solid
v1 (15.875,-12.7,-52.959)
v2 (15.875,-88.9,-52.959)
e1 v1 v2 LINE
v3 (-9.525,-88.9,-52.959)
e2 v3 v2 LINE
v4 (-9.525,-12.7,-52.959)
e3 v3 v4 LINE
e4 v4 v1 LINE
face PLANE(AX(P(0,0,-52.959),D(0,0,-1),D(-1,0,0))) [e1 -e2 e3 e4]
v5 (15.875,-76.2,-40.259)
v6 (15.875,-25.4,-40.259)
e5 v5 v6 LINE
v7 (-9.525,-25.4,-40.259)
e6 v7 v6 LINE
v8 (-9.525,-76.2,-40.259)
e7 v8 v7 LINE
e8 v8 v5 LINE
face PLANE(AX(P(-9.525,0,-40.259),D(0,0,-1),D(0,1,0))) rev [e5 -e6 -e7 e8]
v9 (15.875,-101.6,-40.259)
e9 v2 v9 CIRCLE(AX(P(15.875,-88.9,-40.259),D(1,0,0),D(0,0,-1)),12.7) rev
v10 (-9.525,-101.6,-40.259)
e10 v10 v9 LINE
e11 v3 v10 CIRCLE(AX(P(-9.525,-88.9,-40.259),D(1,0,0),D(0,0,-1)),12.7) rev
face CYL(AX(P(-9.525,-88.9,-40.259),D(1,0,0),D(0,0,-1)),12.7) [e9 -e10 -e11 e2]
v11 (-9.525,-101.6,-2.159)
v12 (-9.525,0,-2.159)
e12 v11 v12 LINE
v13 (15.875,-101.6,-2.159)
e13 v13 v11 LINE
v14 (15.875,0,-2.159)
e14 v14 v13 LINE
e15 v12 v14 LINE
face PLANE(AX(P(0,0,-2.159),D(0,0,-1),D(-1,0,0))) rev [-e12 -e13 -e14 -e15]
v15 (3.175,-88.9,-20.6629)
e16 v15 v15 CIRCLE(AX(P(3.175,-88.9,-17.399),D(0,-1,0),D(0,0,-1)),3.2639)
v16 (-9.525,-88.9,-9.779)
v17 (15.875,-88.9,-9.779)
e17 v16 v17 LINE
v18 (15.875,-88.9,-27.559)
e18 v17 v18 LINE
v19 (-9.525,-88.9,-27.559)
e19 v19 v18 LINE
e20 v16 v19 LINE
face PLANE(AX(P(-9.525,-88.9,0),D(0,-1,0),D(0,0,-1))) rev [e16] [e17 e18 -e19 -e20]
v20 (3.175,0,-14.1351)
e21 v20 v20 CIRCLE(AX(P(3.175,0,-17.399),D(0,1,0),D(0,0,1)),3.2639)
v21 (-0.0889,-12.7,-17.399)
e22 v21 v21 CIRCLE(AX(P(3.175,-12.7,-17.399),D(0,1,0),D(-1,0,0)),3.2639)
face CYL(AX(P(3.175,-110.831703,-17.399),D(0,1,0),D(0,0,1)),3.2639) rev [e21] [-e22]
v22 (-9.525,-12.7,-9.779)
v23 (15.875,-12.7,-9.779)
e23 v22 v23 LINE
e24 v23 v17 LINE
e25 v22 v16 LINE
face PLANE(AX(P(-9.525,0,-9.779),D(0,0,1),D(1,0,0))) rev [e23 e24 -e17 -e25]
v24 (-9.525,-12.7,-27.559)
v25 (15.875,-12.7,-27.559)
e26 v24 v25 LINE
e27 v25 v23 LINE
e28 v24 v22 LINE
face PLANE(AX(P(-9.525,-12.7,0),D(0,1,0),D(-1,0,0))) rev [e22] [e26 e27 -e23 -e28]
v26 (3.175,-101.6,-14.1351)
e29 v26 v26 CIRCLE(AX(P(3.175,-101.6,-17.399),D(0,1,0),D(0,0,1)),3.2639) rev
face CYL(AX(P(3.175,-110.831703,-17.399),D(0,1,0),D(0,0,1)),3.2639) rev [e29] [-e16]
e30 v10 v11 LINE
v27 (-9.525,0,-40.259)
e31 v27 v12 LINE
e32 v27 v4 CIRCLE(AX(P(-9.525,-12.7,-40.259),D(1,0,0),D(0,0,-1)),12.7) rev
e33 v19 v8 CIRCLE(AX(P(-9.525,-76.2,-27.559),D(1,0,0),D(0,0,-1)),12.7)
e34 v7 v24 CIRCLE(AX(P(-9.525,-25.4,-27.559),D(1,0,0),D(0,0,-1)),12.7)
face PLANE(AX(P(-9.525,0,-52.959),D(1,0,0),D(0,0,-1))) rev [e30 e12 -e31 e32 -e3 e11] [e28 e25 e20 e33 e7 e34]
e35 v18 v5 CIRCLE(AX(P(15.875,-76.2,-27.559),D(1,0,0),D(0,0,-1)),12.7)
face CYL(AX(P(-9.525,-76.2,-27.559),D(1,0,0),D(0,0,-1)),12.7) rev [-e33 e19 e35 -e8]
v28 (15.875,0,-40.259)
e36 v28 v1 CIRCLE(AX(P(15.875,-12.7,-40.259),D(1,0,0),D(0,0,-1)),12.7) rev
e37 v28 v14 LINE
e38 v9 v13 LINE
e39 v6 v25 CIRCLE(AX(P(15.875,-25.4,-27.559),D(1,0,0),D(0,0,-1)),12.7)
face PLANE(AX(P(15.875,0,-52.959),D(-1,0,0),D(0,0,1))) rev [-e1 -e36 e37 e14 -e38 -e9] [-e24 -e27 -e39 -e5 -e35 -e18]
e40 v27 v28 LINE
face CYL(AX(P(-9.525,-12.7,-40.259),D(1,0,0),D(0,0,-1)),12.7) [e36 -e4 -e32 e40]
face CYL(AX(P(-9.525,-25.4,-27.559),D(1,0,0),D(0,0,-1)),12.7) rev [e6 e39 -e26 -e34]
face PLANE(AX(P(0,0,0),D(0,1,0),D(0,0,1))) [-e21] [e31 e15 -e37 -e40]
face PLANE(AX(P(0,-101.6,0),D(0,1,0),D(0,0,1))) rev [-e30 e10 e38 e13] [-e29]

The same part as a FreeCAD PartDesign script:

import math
import FreeCAD as App
import Part
import Sketcher

V = App.Vector
Q = App.Units.Quantity

doc = App.newDocument("Part")
body = doc.addObject("PartDesign::Body", "Body")

# Sketch on XZ plane
sketch1 = doc.addObject("Sketcher::SketchObject", "Sketch")
body.addObject(sketch1)
sketch1.AttachmentSupport = (doc.XZ_Plane, [""])
sketch1.MapMode = "FlatFace"
sketch1.addGeometry(Part.LineSegment(V(0, -2.2, 0), V(0, 0, 0)), False)
sketch1.addGeometry(Part.LineSegment(V(0, 0, 0), V(-3.9, 0, 0)), False)
sketch1.addGeometry(Part.LineSegment(V(-3.9, 0, 0), V(0, 5.8, 0)), False)
sketch1.addGeometry(Part.LineSegment(V(0, 5.8, 0), V(6.3, 5.8, 0)), False)
sketch1.addGeometry(Part.LineSegment(V(6.3, 5.8, 0), V(10.3, 0, 0)), False)
sketch1.addGeometry(Part.LineSegment(V(10.3, 0, 0), V(6.3, 0, 0)), False)
sketch1.addGeometry(Part.LineSegment(V(6.3, 0, 0), V(6.3, -2.2, 0)), False)
sketch1.addGeometry(Part.LineSegment(V(6.3, -2.2, 0), V(0, -2.2, 0)), False)
sketch1.addConstraint(Sketcher.Constraint("Coincident", 0, 2, 1, 1))
sketch1.addConstraint(Sketcher.Constraint("Coincident", 1, 2, 2, 1))
sketch1.addConstraint(Sketcher.Constraint("Coincident", 2, 2, 3, 1))
sketch1.addConstraint(Sketcher.Constraint("Coincident", 3, 2, 4, 1))
sketch1.addConstraint(Sketcher.Constraint("Coincident", 4, 2, 5, 1))
sketch1.addConstraint(Sketcher.Constraint("Coincident", 5, 2, 6, 1))
sketch1.addConstraint(Sketcher.Constraint("Coincident", 6, 2, 7, 1))
sketch1.addConstraint(Sketcher.Constraint("Coincident", 7, 2, 0, 1))
sketch1.addConstraint(Sketcher.Constraint("Vertical", 0))
sketch1.addConstraint(Sketcher.Constraint("Horizontal", 1))
sketch1.addConstraint(Sketcher.Constraint("Horizontal", 3))
sketch1.addConstraint(Sketcher.Constraint("Horizontal", 5))
sketch1.addConstraint(Sketcher.Constraint("Vertical", 6))
sketch1.addConstraint(Sketcher.Constraint("Horizontal", 7))
sketch1.addConstraint(Sketcher.Constraint("Coincident", 0, 2, -1, 1))
sketch1.addConstraint(Sketcher.Constraint("PointOnObject", 2, 2, -2))
sketch1.addConstraint(Sketcher.Constraint("PointOnObject", 4, 2, -1))
sketch1.addConstraint(Sketcher.Constraint("Vertical", 3, 2, 5, 2))
sketch1.addConstraint(Sketcher.Constraint("Equal", 1, 5))
sketch1.addConstraint(Sketcher.Constraint("DistanceX", 3, 1, 3, 2, Q("0.25 in")))
sketch1.addConstraint(Sketcher.Constraint("DistanceX", 1, 2, 1, 1, Q("0.155 in")))
sketch1.addConstraint(Sketcher.Constraint("DistanceY", 0, 1, 0, 2, Q("0.085 in")))
sketch1.addConstraint(Sketcher.Constraint("Distance", 2, Q("0.275 in")))
pad1 = doc.addObject("PartDesign::Pad", "Pad")
body.addObject(pad1)
pad1.Profile = sketch1
pad1.Length = Q("4 in")

# Sketch on XY plane
sketch2 = doc.addObject("Sketcher::SketchObject", "Sketch001")
body.addObject(sketch2)
sketch2.AttachmentSupport = (doc.XY_Plane, [""])
sketch2.MapMode = "FlatFace"
sketch2.AttachmentOffset = App.Placement(V(0, 0, -0.085 * 25.4), App.Rotation())
sketch2.addGeometry(Part.LineSegment(V(16, 0, 0), V(16, -102, 0)), False)
sketch2.addGeometry(Part.LineSegment(V(16, -102, 0), V(-10, -102, 0)), False)
sketch2.addGeometry(Part.LineSegment(V(-10, -102, 0), V(-10, 0, 0)), False)
sketch2.addGeometry(Part.LineSegment(V(-10, 0, 0), V(16, 0, 0)), False)
sketch2.addConstraint(Sketcher.Constraint("Coincident", 0, 2, 1, 1))
sketch2.addConstraint(Sketcher.Constraint("Coincident", 1, 2, 2, 1))
sketch2.addConstraint(Sketcher.Constraint("Coincident", 2, 2, 3, 1))
sketch2.addConstraint(Sketcher.Constraint("Coincident", 3, 2, 0, 1))
sketch2.addConstraint(Sketcher.Constraint("Vertical", 0))
sketch2.addConstraint(Sketcher.Constraint("Horizontal", 1))
sketch2.addConstraint(Sketcher.Constraint("Vertical", 2))
sketch2.addConstraint(Sketcher.Constraint("Horizontal", 3))
sketch2.addConstraint(Sketcher.Constraint("PointOnObject", 2, 2, -1))
sketch2.addConstraint(Sketcher.Constraint("DistanceX", 1, 2, 1, 1, Q("1 in")))
sketch2.addConstraint(Sketcher.Constraint("DistanceY", 0, 2, 0, 1, Q("4 in")))
sketch2.addConstraint(Sketcher.Constraint("DistanceX", -1, 1, 0, 2, Q("0.625 in")))
pad2 = doc.addObject("PartDesign::Pad", "Pad001")
body.addObject(pad2)
pad2.Profile = sketch2
pad2.Length = Q("2 in")
pad2.Reversed = True

# Sketch on YZ plane
sketch3 = doc.addObject("Sketcher::SketchObject", "Sketch002")
body.addObject(sketch3)
sketch3.AttachmentSupport = (doc.YZ_Plane, [""])
sketch3.MapMode = "FlatFace"
sketch3.AttachmentOffset = App.Placement(V(0, 0, 0.625 * 25.4), App.Rotation())
sketch3.addGeometry(Part.ArcOfCircle(Part.Circle(V(-89, -40, 0), V(0, 0, 1), 13), math.radians(180), math.radians(270)), False)
sketch3.addGeometry(Part.LineSegment(V(-102, -40, 0), V(-102, -53, 0)), False)
sketch3.addGeometry(Part.LineSegment(V(-102, -53, 0), V(-89, -53, 0)), False)
sketch3.addGeometry(Part.LineSegment(V(0, -53, 0), V(0, -40, 0)), False)
sketch3.addGeometry(Part.ArcOfCircle(Part.Circle(V(-13, -40, 0), V(0, 0, 1), 13), math.radians(-90), math.radians(0)), False)
sketch3.addGeometry(Part.LineSegment(V(-13, -53, 0), V(0, -53, 0)), False)
sketch3.addGeometry(Part.LineSegment(V(-76, -40, 0), V(-25, -40, 0)), False)
sketch3.addGeometry(Part.ArcOfCircle(Part.Circle(V(-25, -28, 0), V(0, 0, 1), 13), math.radians(-90), math.radians(0)), False)
sketch3.addGeometry(Part.LineSegment(V(-13, -28, 0), V(-13, -10, 0)), False)
sketch3.addGeometry(Part.LineSegment(V(-13, -10, 0), V(-89, -10, 0)), False)
sketch3.addGeometry(Part.LineSegment(V(-89, -10, 0), V(-89, -28, 0)), False)
sketch3.addGeometry(Part.ArcOfCircle(Part.Circle(V(-76, -28, 0), V(0, 0, 1), 13), math.radians(180), math.radians(270)), False)
sketch3.addConstraint(Sketcher.Constraint("Tangent", 0, 1, 1, 1))
sketch3.addConstraint(Sketcher.Constraint("Coincident", 1, 2, 2, 1))
sketch3.addConstraint(Sketcher.Constraint("Tangent", 2, 2, 0, 2))
sketch3.addConstraint(Sketcher.Constraint("Tangent", 3, 2, 4, 2))
sketch3.addConstraint(Sketcher.Constraint("Tangent", 4, 1, 5, 1))
sketch3.addConstraint(Sketcher.Constraint("Coincident", 5, 2, 3, 1))
sketch3.addConstraint(Sketcher.Constraint("Tangent", 6, 2, 7, 1))
sketch3.addConstraint(Sketcher.Constraint("Tangent", 7, 2, 8, 1))
sketch3.addConstraint(Sketcher.Constraint("Coincident", 8, 2, 9, 1))
sketch3.addConstraint(Sketcher.Constraint("Coincident", 9, 2, 10, 1))
sketch3.addConstraint(Sketcher.Constraint("Tangent", 10, 2, 11, 1))
sketch3.addConstraint(Sketcher.Constraint("Tangent", 11, 2, 6, 1))
sketch3.addConstraint(Sketcher.Constraint("Vertical", 1))
sketch3.addConstraint(Sketcher.Constraint("Horizontal", 2))
sketch3.addConstraint(Sketcher.Constraint("Vertical", 3))
sketch3.addConstraint(Sketcher.Constraint("Horizontal", 5))
sketch3.addConstraint(Sketcher.Constraint("Horizontal", 6))
sketch3.addConstraint(Sketcher.Constraint("Vertical", 8))
sketch3.addConstraint(Sketcher.Constraint("Horizontal", 9))
sketch3.addConstraint(Sketcher.Constraint("Vertical", 10))
sketch3.addConstraint(Sketcher.Constraint("Equal", 0, 4))
sketch3.addConstraint(Sketcher.Constraint("Equal", 4, 7))
sketch3.addConstraint(Sketcher.Constraint("Equal", 7, 11))
sketch3.addConstraint(Sketcher.Constraint("PointOnObject", 3, 2, -2))
sketch3.addConstraint(Sketcher.Constraint("Horizontal", 0, 3, 4, 3))
sketch3.addConstraint(Sketcher.Constraint("Horizontal", 3, 2, 6, 2))
sketch3.addConstraint(Sketcher.Constraint("Vertical", 4, 1, 7, 2))
sketch3.addConstraint(Sketcher.Constraint("Vertical", 2, 2, 9, 2))
sketch3.addConstraint(Sketcher.Constraint("Radius", 0, Q("0.5 in")))
sketch3.addConstraint(Sketcher.Constraint("DistanceX", 6, 1, 6, 2, Q("2 in")))
sketch3.addConstraint(Sketcher.Constraint("DistanceY", 8, 1, 8, 2, Q("0.7 in")))
sketch3.addConstraint(Sketcher.Constraint("DistanceY", 0, 3, -1, 1, Q("1.585 in")))
pocket1 = doc.addObject("PartDesign::Pocket", "Pocket")
body.addObject(pocket1)
pocket1.Profile = sketch3
pocket1.Length = Q("1 in")

# Sketch on XZ plane
sketch4 = doc.addObject("Sketcher::SketchObject", "Sketch003")
body.addObject(sketch4)
sketch4.AttachmentSupport = (doc.XZ_Plane, [""])
sketch4.MapMode = "FlatFace"
sketch4.addGeometry(Part.Circle(V(3.2, -17.4, 0), V(0, 0, 1), 3.3), False)
sketch4.addConstraint(Sketcher.Constraint("Diameter", 0, Q("0.257 in")))
sketch4.addConstraint(Sketcher.Constraint("DistanceX", -1, 1, 0, 3, Q("0.125 in")))
sketch4.addConstraint(Sketcher.Constraint("DistanceY", 0, 3, -1, 1, Q("0.685 in")))
pocket2 = doc.addObject("PartDesign::Pocket", "Pocket001")
body.addObject(pocket2)
pocket2.Profile = sketch4
pocket2.Length = Q("4 in")
pocket2.Reversed = True

# Sketch on XZ plane
sketch5 = doc.addObject("Sketcher::SketchObject", "Sketch004")
body.addObject(sketch5)
sketch5.AttachmentSupport = (doc.XZ_Plane, [""])
sketch5.MapMode = "FlatFace"
sketch5.addGeometry(Part.LineSegment(V(-5, -2, 0), V(-5, 6, 0)), False)
sketch5.addGeometry(Part.LineSegment(V(-5, 6, 0), V(11, 6, 0)), False)
sketch5.addGeometry(Part.LineSegment(V(11, 6, 0), V(11, -2, 0)), False)
sketch5.addGeometry(Part.LineSegment(V(11, -2, 0), V(-5, -2, 0)), False)
sketch5.addConstraint(Sketcher.Constraint("Coincident", 0, 2, 1, 1))
sketch5.addConstraint(Sketcher.Constraint("Coincident", 1, 2, 2, 1))
sketch5.addConstraint(Sketcher.Constraint("Coincident", 2, 2, 3, 1))
sketch5.addConstraint(Sketcher.Constraint("Coincident", 3, 2, 0, 1))
sketch5.addConstraint(Sketcher.Constraint("Vertical", 0))
sketch5.addConstraint(Sketcher.Constraint("Horizontal", 1))
sketch5.addConstraint(Sketcher.Constraint("Vertical", 2))
sketch5.addConstraint(Sketcher.Constraint("Horizontal", 3))
sketch5.addConstraint(Sketcher.Constraint("DistanceX", 1, 1, 1, 2, Q("0.625 in")))
sketch5.addConstraint(Sketcher.Constraint("DistanceX", 0, 2, -1, 1, Q("0.1875 in")))
sketch5.addConstraint(Sketcher.Constraint("DistanceY", 2, 2, -1, 1, Q("0.085 in")))
sketch5.addConstraint(Sketcher.Constraint("DistanceY", 0, 1, 0, 2, Q("7.928771 mm")))
pocket3 = doc.addObject("PartDesign::Pocket", "Pocket002")
body.addObject(pocket3)
pocket3.Profile = sketch5
pocket3.Type = "ThroughAll"
pocket3.Midplane = True

doc.recompute()
